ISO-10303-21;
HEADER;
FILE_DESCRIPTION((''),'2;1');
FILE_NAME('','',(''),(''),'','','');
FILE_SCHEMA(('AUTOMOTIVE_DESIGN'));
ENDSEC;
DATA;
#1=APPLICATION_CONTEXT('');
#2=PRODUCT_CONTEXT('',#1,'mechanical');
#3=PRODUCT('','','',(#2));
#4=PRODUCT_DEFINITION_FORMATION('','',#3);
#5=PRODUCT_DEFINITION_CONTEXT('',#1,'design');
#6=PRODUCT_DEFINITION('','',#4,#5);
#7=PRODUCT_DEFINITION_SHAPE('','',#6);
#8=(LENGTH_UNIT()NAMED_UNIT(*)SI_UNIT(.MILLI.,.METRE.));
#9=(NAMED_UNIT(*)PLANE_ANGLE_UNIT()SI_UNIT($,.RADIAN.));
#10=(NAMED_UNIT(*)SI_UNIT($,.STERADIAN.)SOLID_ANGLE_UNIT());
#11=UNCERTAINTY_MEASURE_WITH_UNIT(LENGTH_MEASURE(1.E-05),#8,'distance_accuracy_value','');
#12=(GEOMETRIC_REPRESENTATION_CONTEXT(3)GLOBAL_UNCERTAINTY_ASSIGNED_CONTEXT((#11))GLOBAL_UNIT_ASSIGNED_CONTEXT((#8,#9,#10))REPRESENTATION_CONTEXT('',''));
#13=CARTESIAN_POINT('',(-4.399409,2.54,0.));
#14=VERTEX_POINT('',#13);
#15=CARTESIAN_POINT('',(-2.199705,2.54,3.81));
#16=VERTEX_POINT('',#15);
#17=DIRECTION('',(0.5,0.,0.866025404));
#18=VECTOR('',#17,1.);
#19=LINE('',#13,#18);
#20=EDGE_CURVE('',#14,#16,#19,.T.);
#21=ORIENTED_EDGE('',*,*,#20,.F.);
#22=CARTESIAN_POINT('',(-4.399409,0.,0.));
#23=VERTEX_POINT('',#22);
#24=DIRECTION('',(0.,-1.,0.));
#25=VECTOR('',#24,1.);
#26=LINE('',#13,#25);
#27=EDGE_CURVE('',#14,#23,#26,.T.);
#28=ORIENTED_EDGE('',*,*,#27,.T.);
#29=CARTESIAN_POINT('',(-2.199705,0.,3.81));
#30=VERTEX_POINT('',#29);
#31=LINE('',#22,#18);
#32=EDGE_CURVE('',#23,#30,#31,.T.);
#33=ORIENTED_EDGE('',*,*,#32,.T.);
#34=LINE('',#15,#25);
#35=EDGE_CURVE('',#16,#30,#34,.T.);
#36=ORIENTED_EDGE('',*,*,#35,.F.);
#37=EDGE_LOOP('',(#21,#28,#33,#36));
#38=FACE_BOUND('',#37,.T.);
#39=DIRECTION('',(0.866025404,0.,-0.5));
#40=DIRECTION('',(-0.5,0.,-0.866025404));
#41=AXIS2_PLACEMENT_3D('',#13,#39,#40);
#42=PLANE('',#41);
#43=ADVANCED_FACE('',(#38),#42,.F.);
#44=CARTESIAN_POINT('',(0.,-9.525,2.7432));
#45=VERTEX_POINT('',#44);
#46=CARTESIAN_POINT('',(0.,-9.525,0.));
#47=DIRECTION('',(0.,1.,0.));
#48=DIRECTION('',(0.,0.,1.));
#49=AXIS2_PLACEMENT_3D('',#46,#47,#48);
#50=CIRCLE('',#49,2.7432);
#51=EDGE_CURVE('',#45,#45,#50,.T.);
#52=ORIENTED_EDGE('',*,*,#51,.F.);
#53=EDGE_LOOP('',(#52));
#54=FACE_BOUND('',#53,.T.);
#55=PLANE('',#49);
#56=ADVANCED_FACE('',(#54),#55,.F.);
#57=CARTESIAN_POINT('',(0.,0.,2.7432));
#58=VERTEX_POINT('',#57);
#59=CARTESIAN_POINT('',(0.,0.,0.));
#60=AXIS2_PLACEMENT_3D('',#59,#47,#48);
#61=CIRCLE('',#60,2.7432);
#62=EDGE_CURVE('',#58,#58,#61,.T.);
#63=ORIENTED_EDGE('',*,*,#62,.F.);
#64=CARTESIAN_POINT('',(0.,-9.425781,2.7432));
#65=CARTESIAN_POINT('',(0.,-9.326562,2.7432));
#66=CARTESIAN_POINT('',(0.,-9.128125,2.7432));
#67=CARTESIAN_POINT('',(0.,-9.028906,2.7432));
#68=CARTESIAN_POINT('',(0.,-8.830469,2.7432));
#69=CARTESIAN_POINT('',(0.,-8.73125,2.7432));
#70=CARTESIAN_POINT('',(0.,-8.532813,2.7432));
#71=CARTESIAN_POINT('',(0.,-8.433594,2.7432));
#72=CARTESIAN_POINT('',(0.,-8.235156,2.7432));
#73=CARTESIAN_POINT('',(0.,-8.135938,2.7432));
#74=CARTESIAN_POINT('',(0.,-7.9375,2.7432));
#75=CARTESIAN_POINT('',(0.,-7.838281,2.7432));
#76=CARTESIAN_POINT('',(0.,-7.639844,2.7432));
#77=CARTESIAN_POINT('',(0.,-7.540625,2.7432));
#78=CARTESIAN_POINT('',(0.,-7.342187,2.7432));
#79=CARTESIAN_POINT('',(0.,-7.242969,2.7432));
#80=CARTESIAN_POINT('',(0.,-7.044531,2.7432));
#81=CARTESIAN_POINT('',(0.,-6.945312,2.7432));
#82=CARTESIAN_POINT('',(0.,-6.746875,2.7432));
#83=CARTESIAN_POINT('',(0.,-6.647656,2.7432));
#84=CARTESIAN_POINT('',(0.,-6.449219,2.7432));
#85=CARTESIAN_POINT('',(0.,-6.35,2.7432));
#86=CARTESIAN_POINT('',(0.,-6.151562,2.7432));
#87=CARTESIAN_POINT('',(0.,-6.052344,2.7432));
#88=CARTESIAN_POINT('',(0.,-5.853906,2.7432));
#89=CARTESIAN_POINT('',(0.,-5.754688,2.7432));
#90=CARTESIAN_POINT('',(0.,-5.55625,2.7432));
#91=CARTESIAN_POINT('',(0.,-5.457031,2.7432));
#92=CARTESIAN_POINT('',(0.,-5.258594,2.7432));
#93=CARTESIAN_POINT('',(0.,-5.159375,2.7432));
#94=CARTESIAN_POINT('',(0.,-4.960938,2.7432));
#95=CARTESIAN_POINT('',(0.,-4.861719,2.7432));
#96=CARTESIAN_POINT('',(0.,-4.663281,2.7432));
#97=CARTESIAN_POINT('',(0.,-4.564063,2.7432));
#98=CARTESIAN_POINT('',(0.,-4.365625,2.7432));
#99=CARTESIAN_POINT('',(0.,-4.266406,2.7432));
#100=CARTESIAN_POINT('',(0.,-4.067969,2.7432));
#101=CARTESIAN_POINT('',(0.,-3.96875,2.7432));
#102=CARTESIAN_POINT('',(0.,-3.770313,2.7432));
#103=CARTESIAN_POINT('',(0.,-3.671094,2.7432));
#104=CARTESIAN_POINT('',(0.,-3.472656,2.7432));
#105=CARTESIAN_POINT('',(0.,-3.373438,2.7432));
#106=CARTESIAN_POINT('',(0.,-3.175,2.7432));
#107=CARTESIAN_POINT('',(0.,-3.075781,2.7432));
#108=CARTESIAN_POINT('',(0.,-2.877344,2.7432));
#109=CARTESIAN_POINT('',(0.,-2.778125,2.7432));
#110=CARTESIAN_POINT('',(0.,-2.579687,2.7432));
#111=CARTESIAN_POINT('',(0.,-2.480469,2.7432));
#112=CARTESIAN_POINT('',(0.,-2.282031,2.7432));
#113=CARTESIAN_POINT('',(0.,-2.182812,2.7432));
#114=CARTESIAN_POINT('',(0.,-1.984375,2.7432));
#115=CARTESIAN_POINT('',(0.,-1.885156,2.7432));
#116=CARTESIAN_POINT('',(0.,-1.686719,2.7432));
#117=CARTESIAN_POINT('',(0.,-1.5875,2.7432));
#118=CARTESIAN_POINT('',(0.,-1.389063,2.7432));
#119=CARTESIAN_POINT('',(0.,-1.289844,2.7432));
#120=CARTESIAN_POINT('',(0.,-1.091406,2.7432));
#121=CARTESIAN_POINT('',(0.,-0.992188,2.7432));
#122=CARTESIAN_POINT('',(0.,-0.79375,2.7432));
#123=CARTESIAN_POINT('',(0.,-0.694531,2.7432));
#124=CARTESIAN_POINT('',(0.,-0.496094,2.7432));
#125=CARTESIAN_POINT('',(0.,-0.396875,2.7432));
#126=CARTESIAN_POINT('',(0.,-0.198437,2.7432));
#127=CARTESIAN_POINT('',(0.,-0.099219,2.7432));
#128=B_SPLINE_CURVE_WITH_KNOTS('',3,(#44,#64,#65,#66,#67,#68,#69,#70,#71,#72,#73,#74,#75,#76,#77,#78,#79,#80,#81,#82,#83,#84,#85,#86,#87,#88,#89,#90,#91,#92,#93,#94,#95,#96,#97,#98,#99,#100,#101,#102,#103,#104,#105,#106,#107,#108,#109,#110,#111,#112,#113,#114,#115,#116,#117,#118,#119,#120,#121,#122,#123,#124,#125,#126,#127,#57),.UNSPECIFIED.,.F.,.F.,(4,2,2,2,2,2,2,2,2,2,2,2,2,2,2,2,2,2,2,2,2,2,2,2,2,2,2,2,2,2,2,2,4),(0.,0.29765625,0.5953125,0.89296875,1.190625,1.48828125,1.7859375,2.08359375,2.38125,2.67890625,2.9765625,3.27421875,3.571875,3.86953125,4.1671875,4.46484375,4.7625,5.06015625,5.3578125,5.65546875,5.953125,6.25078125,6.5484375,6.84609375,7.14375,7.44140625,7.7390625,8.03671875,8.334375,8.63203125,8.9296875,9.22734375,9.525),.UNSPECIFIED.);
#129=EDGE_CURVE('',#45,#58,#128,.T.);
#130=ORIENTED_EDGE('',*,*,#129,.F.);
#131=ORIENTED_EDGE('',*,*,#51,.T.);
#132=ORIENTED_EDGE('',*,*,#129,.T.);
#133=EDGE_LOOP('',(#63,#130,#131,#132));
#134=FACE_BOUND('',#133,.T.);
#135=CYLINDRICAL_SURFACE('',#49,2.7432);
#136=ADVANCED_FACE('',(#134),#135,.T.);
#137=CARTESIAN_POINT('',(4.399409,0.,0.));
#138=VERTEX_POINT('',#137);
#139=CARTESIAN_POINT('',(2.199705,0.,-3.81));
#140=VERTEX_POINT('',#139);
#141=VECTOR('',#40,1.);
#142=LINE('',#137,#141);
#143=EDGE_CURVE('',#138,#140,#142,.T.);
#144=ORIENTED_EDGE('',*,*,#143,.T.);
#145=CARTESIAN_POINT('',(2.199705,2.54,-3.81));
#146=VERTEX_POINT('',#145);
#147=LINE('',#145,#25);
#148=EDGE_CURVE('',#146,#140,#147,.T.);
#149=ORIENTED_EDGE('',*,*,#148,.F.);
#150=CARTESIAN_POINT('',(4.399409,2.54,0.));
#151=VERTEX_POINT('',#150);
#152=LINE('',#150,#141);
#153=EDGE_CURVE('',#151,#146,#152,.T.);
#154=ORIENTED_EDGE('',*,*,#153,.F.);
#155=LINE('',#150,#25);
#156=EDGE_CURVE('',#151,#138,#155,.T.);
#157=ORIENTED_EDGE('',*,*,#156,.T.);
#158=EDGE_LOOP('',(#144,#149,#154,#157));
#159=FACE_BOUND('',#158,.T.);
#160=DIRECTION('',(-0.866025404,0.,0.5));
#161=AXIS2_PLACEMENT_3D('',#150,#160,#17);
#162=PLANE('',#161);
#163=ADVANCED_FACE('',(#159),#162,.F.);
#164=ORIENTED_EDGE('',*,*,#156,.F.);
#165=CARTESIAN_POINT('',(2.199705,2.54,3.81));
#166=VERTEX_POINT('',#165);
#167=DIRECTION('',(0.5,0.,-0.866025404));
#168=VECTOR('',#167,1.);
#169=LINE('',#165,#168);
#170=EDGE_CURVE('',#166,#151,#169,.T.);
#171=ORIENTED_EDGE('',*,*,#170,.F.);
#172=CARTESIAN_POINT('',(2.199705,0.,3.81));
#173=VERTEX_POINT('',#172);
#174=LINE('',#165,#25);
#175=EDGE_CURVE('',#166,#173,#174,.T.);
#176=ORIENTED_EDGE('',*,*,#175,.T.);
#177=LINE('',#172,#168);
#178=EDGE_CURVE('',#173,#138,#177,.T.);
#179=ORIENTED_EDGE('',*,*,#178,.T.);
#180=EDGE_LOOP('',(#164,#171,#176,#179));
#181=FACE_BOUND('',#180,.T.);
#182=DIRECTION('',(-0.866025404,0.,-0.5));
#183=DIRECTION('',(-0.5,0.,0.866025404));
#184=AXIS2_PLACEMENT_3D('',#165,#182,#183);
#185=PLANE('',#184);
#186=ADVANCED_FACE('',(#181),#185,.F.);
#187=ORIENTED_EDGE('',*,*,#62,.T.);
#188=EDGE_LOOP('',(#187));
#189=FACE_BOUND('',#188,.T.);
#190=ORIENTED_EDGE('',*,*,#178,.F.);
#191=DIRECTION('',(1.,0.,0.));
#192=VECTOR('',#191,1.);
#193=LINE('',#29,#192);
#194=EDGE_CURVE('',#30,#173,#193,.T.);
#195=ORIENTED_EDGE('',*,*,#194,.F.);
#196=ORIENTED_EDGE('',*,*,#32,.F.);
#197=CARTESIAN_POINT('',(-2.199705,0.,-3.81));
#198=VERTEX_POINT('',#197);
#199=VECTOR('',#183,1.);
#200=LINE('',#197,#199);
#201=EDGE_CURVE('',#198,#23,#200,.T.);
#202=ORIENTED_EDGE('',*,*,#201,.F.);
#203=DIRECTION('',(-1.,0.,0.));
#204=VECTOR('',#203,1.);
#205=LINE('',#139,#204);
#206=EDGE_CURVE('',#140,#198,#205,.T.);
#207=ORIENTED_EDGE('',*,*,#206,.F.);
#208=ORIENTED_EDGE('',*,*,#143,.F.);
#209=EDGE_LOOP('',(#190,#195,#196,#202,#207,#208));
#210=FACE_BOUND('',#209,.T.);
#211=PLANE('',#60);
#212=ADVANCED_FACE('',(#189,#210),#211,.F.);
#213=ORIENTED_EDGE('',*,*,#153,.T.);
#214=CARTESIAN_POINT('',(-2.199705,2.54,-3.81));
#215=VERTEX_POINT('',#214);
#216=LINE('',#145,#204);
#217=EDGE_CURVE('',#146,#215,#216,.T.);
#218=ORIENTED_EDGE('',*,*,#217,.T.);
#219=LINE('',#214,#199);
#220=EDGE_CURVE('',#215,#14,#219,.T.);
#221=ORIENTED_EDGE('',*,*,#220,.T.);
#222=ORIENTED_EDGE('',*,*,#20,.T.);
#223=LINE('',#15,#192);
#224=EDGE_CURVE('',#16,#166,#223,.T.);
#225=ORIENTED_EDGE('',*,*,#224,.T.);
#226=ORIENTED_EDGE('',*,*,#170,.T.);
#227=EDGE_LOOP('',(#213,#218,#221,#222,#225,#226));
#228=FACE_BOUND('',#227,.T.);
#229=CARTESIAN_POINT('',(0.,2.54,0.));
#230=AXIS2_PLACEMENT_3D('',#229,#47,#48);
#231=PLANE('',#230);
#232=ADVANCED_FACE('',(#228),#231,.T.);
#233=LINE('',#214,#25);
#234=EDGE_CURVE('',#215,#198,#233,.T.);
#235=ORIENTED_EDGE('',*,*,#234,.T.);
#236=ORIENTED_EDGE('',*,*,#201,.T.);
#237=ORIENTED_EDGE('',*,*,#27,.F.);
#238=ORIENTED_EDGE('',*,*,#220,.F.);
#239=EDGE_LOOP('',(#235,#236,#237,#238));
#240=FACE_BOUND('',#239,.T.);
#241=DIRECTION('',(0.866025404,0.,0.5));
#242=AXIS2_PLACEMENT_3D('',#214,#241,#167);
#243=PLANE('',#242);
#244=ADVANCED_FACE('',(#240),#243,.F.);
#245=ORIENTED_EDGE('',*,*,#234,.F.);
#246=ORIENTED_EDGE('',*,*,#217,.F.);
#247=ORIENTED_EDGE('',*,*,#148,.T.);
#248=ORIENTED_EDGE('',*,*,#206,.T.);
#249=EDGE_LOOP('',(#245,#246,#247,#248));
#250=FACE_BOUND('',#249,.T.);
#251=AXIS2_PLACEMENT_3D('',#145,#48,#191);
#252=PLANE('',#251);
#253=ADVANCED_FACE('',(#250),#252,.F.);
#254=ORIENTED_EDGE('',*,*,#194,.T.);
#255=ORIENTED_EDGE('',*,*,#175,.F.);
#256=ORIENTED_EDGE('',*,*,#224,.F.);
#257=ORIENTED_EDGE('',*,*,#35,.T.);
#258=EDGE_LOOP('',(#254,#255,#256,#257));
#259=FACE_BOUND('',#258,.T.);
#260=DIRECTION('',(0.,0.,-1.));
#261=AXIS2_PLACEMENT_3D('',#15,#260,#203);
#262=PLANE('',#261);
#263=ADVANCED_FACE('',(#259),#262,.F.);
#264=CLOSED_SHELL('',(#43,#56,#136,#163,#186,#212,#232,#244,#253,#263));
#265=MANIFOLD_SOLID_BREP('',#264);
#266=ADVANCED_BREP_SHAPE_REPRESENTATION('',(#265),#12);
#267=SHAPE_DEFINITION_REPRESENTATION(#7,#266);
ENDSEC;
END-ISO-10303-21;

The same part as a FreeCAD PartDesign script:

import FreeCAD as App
import Part
import Sketcher

V = App.Vector
Q = App.Units.Quantity


def add_polygon(sketch, points):
    """Adds a closed chain of lines whose ends are joined by coincident constraints."""
    first, n = sketch.GeometryCount, len(points)
    for a, b in zip(points, points[1:] + points[:1]):
        sketch.addGeometry(Part.LineSegment(App.Vector(*a, 0), App.Vector(*b, 0)), False)
    for i in range(n):
        sketch.addConstraint(Sketcher.Constraint("Coincident", first + i, 2, first + (i + 1) % n, 1))

doc = App.newDocument("Part")
body = doc.addObject("PartDesign::Body", "Body")

# Sketch on XZ plane
sketch1 = body.newObject("Sketcher::SketchObject", "Sketch")
sketch1.AttachmentSupport = (doc.getObject("XZ_Plane"), [""])
sketch1.MapMode = "FlatFace"
sketch1.addGeometry(Part.Circle(V(0, 0, 0), V(0, 0, 1), 2.7432), False)
sketch1.addConstraint(Sketcher.Constraint("Coincident", 0, 3, -1, 1))
sketch1.addConstraint(Sketcher.Constraint("Diameter", 0, Q("0.216 in")))
pad1 = body.newObject("PartDesign::Pad", "Pad")
pad1.Profile = sketch1
pad1.Length = Q("0.375 in")

# Sketch on XZ plane
sketch2 = body.newObject("Sketcher::SketchObject", "Sketch001")
sketch2.AttachmentSupport = (doc.getObject("XZ_Plane"), [""])
sketch2.MapMode = "FlatFace"
add_polygon(sketch2, [(4.399409, 0), (2.199705, -3.81), (-2.199705, -3.81), (-4.399409, 0), (-2.199705, 3.81), (2.199705, 3.81)])  # lines 0-5
sketch2.addConstraint(Sketcher.Constraint("Horizontal", 1))
sketch2.addConstraint(Sketcher.Constraint("Horizontal", 4))
sketch2.addConstraint(Sketcher.Constraint("Symmetric", 0, 2, 3, 2, -1, 1))
sketch2.addConstraint(Sketcher.Constraint("Symmetric", 2, 2, 5, 2, -1, 1))
sketch2.addConstraint(Sketcher.Constraint("PointOnObject", 2, 2, -1))
sketch2.addConstraint(Sketcher.Constraint("Parallel", 2, 5))
sketch2.addConstraint(Sketcher.Constraint("Vertical", 1, 2, 3, 2))
sketch2.addConstraint(Sketcher.Constraint("Angle", 0, Q("-120 deg")))
sketch2.addConstraint(Sketcher.Constraint("DistanceY", 1, 2, 3, 2, Q("0.3 in")))
sketch2.addConstraint(Sketcher.Constraint("DistanceX", 1, 2, 1, 1, Q("4.399409 mm")))
pad2 = body.newObject("PartDesign::Pad", "Pad001")
pad2.Profile = sketch2
pad2.Length = Q("0.1 in")
pad2.Reversed = True

doc.recompute()
